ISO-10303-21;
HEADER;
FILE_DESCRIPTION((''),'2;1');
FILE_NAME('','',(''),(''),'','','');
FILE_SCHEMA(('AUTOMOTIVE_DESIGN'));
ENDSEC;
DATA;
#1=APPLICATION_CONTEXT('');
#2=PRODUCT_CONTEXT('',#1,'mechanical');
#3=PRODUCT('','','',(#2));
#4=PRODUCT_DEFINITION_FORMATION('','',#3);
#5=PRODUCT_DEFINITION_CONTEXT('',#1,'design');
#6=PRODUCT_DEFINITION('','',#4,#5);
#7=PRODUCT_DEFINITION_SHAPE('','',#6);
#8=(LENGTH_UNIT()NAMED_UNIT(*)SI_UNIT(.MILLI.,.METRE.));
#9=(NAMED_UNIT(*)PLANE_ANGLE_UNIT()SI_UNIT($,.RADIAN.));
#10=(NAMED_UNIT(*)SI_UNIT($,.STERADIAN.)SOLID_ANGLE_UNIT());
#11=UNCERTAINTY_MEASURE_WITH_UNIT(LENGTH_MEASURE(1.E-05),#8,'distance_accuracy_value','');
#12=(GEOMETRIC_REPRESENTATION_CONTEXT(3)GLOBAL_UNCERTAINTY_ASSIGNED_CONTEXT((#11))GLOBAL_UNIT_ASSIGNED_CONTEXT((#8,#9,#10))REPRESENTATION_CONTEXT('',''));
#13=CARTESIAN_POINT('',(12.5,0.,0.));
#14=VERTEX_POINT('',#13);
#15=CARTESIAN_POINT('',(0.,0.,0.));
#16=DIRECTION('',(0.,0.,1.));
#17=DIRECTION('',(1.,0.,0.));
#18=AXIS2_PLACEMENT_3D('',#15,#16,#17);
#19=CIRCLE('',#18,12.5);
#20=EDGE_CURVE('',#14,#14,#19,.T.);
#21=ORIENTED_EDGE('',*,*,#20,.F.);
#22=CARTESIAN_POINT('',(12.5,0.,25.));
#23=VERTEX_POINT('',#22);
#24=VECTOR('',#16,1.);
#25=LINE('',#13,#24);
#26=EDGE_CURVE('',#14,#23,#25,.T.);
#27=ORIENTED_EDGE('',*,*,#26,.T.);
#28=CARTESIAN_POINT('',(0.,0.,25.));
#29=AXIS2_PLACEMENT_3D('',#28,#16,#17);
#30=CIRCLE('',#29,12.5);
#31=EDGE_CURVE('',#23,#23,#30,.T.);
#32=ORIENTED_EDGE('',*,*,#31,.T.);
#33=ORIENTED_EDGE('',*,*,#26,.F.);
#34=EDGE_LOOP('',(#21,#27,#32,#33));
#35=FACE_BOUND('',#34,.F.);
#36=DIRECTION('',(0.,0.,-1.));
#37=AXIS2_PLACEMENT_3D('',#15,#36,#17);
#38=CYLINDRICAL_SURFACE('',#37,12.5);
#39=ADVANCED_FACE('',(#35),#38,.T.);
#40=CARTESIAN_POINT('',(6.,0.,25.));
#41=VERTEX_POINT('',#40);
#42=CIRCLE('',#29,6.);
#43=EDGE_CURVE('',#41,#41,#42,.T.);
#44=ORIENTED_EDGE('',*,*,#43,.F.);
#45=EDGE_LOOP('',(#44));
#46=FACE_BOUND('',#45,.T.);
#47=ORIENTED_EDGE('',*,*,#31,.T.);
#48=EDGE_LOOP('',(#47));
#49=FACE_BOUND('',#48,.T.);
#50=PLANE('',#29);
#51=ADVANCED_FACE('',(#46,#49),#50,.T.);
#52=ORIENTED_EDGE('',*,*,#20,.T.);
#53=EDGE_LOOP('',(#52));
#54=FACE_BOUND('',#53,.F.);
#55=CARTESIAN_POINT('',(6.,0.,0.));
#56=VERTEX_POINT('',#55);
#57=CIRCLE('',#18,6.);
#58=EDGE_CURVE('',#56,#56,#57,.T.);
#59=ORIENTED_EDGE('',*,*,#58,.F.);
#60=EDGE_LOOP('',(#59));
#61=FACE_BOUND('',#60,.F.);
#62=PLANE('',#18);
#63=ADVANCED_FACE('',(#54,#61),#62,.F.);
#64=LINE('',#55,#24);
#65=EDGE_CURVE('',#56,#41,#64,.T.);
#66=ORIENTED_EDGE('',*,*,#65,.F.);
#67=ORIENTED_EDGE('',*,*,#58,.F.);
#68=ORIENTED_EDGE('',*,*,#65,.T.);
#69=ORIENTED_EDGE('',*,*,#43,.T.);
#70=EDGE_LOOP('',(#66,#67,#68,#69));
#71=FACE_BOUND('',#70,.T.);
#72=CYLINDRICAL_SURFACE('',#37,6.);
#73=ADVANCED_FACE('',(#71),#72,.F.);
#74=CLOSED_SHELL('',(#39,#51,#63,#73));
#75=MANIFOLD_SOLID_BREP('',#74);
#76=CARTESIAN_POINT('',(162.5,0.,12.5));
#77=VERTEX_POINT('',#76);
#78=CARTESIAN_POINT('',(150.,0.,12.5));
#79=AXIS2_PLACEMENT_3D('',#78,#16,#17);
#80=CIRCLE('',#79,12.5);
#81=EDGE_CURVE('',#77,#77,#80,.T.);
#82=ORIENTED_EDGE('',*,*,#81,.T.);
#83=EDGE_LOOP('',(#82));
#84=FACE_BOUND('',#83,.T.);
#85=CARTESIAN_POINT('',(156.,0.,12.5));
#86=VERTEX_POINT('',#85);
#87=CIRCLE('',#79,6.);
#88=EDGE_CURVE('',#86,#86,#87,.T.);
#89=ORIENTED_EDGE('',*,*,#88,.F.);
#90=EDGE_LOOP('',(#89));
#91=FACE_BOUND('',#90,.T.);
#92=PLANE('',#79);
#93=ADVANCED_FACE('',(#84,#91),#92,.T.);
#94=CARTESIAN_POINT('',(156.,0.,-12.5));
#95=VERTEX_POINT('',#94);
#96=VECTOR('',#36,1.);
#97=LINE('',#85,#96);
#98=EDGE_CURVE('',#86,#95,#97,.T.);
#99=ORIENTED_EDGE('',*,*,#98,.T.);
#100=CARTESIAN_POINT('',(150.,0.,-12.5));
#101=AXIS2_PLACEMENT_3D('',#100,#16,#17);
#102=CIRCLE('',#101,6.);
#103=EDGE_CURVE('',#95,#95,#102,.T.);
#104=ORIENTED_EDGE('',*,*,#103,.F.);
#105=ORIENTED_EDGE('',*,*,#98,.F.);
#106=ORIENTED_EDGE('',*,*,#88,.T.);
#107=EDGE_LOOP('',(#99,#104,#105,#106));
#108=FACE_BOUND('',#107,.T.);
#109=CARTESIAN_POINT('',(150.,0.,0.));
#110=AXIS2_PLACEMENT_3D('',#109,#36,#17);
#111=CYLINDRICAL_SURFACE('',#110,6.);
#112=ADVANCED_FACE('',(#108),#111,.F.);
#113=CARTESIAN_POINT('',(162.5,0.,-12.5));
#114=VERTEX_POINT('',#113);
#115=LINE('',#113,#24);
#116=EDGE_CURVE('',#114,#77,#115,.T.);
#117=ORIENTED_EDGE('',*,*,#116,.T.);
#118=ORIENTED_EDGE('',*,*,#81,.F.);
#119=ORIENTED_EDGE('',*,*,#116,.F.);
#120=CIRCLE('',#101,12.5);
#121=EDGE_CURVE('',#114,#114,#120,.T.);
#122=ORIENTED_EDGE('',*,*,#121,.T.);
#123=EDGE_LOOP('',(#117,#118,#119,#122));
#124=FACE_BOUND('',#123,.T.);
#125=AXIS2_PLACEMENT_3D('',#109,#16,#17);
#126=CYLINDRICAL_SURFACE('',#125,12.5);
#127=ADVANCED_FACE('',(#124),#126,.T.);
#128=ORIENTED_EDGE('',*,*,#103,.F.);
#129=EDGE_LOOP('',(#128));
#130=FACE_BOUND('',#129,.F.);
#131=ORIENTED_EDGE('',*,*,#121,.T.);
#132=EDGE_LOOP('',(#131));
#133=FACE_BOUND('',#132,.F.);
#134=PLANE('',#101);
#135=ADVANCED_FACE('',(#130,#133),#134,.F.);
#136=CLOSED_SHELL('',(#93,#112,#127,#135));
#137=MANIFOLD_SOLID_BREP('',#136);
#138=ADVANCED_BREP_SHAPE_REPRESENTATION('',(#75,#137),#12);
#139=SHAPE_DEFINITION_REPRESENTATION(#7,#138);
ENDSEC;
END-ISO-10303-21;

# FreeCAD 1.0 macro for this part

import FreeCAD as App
import Part
import Sketcher
from FreeCAD import Vector
Q = App.Units.Quantity

doc = App.newDocument("Part")
body = doc.addObject("PartDesign::Body", "Body")

# Sketch on XY plane
sketch1 = doc.addObject("Sketcher::SketchObject", "Sketch")
body.addObject(sketch1)
sketch1.AttachmentSupport = (doc.XY_Plane, [""])
sketch1.MapMode = "FlatFace"
sketch1.addGeometry([
    Part.Circle(Vector(0, 0, 0), Vector(0, 0, 1), 12),
    Part.Circle(Vector(0, 0, 0), Vector(0, 0, 1), 6),
], False)
sketch1.addConstraint([
    Sketcher.Constraint("Coincident", 0, 3, -1, 1),
    Sketcher.Constraint("Coincident", 1, 3, -1, 1),
    Sketcher.Constraint("Diameter", 0, Q("25 mm")),
    Sketcher.Constraint("Diameter", 1, Q("12 mm")),
])
pad1 = doc.addObject("PartDesign::Pad", "Pad")
body.addObject(pad1)
pad1.Profile = sketch1
pad1.Length = 25
body2 = doc.addObject("PartDesign::Body", "Body001")

# Sketch on XY plane
sketch2 = doc.addObject("Sketcher::SketchObject", "Sketch001")
body2.addObject(sketch2)
sketch2.AttachmentSupport = (doc.getObject("XY_Plane001"), [""])
sketch2.MapMode = "FlatFace"
sketch2.addGeometry([
    Part.Circle(Vector(150, 0, 0), Vector(0, 0, 1), 12),
    Part.Circle(Vector(150, 0, 0), Vector(0, 0, 1), 6),
], False)
sketch2.addConstraint([
    Sketcher.Constraint("Coincident", 1, 3, 0, 3),
    Sketcher.Constraint("PointOnObject", 0, 3, -1),
    Sketcher.Constraint("Diameter", 0, Q("25 mm")),
    Sketcher.Constraint("Diameter", 1, Q("12 mm")),
    Sketcher.Constraint("DistanceX", -1, 1, 0, 3, Q("150 mm")),
])
pad2 = doc.addObject("PartDesign::Pad", "Pad001")
body2.addObject(pad2)
pad2.Profile = sketch2
pad2.Length = 25
pad2.Midplane = True

doc.recompute()
